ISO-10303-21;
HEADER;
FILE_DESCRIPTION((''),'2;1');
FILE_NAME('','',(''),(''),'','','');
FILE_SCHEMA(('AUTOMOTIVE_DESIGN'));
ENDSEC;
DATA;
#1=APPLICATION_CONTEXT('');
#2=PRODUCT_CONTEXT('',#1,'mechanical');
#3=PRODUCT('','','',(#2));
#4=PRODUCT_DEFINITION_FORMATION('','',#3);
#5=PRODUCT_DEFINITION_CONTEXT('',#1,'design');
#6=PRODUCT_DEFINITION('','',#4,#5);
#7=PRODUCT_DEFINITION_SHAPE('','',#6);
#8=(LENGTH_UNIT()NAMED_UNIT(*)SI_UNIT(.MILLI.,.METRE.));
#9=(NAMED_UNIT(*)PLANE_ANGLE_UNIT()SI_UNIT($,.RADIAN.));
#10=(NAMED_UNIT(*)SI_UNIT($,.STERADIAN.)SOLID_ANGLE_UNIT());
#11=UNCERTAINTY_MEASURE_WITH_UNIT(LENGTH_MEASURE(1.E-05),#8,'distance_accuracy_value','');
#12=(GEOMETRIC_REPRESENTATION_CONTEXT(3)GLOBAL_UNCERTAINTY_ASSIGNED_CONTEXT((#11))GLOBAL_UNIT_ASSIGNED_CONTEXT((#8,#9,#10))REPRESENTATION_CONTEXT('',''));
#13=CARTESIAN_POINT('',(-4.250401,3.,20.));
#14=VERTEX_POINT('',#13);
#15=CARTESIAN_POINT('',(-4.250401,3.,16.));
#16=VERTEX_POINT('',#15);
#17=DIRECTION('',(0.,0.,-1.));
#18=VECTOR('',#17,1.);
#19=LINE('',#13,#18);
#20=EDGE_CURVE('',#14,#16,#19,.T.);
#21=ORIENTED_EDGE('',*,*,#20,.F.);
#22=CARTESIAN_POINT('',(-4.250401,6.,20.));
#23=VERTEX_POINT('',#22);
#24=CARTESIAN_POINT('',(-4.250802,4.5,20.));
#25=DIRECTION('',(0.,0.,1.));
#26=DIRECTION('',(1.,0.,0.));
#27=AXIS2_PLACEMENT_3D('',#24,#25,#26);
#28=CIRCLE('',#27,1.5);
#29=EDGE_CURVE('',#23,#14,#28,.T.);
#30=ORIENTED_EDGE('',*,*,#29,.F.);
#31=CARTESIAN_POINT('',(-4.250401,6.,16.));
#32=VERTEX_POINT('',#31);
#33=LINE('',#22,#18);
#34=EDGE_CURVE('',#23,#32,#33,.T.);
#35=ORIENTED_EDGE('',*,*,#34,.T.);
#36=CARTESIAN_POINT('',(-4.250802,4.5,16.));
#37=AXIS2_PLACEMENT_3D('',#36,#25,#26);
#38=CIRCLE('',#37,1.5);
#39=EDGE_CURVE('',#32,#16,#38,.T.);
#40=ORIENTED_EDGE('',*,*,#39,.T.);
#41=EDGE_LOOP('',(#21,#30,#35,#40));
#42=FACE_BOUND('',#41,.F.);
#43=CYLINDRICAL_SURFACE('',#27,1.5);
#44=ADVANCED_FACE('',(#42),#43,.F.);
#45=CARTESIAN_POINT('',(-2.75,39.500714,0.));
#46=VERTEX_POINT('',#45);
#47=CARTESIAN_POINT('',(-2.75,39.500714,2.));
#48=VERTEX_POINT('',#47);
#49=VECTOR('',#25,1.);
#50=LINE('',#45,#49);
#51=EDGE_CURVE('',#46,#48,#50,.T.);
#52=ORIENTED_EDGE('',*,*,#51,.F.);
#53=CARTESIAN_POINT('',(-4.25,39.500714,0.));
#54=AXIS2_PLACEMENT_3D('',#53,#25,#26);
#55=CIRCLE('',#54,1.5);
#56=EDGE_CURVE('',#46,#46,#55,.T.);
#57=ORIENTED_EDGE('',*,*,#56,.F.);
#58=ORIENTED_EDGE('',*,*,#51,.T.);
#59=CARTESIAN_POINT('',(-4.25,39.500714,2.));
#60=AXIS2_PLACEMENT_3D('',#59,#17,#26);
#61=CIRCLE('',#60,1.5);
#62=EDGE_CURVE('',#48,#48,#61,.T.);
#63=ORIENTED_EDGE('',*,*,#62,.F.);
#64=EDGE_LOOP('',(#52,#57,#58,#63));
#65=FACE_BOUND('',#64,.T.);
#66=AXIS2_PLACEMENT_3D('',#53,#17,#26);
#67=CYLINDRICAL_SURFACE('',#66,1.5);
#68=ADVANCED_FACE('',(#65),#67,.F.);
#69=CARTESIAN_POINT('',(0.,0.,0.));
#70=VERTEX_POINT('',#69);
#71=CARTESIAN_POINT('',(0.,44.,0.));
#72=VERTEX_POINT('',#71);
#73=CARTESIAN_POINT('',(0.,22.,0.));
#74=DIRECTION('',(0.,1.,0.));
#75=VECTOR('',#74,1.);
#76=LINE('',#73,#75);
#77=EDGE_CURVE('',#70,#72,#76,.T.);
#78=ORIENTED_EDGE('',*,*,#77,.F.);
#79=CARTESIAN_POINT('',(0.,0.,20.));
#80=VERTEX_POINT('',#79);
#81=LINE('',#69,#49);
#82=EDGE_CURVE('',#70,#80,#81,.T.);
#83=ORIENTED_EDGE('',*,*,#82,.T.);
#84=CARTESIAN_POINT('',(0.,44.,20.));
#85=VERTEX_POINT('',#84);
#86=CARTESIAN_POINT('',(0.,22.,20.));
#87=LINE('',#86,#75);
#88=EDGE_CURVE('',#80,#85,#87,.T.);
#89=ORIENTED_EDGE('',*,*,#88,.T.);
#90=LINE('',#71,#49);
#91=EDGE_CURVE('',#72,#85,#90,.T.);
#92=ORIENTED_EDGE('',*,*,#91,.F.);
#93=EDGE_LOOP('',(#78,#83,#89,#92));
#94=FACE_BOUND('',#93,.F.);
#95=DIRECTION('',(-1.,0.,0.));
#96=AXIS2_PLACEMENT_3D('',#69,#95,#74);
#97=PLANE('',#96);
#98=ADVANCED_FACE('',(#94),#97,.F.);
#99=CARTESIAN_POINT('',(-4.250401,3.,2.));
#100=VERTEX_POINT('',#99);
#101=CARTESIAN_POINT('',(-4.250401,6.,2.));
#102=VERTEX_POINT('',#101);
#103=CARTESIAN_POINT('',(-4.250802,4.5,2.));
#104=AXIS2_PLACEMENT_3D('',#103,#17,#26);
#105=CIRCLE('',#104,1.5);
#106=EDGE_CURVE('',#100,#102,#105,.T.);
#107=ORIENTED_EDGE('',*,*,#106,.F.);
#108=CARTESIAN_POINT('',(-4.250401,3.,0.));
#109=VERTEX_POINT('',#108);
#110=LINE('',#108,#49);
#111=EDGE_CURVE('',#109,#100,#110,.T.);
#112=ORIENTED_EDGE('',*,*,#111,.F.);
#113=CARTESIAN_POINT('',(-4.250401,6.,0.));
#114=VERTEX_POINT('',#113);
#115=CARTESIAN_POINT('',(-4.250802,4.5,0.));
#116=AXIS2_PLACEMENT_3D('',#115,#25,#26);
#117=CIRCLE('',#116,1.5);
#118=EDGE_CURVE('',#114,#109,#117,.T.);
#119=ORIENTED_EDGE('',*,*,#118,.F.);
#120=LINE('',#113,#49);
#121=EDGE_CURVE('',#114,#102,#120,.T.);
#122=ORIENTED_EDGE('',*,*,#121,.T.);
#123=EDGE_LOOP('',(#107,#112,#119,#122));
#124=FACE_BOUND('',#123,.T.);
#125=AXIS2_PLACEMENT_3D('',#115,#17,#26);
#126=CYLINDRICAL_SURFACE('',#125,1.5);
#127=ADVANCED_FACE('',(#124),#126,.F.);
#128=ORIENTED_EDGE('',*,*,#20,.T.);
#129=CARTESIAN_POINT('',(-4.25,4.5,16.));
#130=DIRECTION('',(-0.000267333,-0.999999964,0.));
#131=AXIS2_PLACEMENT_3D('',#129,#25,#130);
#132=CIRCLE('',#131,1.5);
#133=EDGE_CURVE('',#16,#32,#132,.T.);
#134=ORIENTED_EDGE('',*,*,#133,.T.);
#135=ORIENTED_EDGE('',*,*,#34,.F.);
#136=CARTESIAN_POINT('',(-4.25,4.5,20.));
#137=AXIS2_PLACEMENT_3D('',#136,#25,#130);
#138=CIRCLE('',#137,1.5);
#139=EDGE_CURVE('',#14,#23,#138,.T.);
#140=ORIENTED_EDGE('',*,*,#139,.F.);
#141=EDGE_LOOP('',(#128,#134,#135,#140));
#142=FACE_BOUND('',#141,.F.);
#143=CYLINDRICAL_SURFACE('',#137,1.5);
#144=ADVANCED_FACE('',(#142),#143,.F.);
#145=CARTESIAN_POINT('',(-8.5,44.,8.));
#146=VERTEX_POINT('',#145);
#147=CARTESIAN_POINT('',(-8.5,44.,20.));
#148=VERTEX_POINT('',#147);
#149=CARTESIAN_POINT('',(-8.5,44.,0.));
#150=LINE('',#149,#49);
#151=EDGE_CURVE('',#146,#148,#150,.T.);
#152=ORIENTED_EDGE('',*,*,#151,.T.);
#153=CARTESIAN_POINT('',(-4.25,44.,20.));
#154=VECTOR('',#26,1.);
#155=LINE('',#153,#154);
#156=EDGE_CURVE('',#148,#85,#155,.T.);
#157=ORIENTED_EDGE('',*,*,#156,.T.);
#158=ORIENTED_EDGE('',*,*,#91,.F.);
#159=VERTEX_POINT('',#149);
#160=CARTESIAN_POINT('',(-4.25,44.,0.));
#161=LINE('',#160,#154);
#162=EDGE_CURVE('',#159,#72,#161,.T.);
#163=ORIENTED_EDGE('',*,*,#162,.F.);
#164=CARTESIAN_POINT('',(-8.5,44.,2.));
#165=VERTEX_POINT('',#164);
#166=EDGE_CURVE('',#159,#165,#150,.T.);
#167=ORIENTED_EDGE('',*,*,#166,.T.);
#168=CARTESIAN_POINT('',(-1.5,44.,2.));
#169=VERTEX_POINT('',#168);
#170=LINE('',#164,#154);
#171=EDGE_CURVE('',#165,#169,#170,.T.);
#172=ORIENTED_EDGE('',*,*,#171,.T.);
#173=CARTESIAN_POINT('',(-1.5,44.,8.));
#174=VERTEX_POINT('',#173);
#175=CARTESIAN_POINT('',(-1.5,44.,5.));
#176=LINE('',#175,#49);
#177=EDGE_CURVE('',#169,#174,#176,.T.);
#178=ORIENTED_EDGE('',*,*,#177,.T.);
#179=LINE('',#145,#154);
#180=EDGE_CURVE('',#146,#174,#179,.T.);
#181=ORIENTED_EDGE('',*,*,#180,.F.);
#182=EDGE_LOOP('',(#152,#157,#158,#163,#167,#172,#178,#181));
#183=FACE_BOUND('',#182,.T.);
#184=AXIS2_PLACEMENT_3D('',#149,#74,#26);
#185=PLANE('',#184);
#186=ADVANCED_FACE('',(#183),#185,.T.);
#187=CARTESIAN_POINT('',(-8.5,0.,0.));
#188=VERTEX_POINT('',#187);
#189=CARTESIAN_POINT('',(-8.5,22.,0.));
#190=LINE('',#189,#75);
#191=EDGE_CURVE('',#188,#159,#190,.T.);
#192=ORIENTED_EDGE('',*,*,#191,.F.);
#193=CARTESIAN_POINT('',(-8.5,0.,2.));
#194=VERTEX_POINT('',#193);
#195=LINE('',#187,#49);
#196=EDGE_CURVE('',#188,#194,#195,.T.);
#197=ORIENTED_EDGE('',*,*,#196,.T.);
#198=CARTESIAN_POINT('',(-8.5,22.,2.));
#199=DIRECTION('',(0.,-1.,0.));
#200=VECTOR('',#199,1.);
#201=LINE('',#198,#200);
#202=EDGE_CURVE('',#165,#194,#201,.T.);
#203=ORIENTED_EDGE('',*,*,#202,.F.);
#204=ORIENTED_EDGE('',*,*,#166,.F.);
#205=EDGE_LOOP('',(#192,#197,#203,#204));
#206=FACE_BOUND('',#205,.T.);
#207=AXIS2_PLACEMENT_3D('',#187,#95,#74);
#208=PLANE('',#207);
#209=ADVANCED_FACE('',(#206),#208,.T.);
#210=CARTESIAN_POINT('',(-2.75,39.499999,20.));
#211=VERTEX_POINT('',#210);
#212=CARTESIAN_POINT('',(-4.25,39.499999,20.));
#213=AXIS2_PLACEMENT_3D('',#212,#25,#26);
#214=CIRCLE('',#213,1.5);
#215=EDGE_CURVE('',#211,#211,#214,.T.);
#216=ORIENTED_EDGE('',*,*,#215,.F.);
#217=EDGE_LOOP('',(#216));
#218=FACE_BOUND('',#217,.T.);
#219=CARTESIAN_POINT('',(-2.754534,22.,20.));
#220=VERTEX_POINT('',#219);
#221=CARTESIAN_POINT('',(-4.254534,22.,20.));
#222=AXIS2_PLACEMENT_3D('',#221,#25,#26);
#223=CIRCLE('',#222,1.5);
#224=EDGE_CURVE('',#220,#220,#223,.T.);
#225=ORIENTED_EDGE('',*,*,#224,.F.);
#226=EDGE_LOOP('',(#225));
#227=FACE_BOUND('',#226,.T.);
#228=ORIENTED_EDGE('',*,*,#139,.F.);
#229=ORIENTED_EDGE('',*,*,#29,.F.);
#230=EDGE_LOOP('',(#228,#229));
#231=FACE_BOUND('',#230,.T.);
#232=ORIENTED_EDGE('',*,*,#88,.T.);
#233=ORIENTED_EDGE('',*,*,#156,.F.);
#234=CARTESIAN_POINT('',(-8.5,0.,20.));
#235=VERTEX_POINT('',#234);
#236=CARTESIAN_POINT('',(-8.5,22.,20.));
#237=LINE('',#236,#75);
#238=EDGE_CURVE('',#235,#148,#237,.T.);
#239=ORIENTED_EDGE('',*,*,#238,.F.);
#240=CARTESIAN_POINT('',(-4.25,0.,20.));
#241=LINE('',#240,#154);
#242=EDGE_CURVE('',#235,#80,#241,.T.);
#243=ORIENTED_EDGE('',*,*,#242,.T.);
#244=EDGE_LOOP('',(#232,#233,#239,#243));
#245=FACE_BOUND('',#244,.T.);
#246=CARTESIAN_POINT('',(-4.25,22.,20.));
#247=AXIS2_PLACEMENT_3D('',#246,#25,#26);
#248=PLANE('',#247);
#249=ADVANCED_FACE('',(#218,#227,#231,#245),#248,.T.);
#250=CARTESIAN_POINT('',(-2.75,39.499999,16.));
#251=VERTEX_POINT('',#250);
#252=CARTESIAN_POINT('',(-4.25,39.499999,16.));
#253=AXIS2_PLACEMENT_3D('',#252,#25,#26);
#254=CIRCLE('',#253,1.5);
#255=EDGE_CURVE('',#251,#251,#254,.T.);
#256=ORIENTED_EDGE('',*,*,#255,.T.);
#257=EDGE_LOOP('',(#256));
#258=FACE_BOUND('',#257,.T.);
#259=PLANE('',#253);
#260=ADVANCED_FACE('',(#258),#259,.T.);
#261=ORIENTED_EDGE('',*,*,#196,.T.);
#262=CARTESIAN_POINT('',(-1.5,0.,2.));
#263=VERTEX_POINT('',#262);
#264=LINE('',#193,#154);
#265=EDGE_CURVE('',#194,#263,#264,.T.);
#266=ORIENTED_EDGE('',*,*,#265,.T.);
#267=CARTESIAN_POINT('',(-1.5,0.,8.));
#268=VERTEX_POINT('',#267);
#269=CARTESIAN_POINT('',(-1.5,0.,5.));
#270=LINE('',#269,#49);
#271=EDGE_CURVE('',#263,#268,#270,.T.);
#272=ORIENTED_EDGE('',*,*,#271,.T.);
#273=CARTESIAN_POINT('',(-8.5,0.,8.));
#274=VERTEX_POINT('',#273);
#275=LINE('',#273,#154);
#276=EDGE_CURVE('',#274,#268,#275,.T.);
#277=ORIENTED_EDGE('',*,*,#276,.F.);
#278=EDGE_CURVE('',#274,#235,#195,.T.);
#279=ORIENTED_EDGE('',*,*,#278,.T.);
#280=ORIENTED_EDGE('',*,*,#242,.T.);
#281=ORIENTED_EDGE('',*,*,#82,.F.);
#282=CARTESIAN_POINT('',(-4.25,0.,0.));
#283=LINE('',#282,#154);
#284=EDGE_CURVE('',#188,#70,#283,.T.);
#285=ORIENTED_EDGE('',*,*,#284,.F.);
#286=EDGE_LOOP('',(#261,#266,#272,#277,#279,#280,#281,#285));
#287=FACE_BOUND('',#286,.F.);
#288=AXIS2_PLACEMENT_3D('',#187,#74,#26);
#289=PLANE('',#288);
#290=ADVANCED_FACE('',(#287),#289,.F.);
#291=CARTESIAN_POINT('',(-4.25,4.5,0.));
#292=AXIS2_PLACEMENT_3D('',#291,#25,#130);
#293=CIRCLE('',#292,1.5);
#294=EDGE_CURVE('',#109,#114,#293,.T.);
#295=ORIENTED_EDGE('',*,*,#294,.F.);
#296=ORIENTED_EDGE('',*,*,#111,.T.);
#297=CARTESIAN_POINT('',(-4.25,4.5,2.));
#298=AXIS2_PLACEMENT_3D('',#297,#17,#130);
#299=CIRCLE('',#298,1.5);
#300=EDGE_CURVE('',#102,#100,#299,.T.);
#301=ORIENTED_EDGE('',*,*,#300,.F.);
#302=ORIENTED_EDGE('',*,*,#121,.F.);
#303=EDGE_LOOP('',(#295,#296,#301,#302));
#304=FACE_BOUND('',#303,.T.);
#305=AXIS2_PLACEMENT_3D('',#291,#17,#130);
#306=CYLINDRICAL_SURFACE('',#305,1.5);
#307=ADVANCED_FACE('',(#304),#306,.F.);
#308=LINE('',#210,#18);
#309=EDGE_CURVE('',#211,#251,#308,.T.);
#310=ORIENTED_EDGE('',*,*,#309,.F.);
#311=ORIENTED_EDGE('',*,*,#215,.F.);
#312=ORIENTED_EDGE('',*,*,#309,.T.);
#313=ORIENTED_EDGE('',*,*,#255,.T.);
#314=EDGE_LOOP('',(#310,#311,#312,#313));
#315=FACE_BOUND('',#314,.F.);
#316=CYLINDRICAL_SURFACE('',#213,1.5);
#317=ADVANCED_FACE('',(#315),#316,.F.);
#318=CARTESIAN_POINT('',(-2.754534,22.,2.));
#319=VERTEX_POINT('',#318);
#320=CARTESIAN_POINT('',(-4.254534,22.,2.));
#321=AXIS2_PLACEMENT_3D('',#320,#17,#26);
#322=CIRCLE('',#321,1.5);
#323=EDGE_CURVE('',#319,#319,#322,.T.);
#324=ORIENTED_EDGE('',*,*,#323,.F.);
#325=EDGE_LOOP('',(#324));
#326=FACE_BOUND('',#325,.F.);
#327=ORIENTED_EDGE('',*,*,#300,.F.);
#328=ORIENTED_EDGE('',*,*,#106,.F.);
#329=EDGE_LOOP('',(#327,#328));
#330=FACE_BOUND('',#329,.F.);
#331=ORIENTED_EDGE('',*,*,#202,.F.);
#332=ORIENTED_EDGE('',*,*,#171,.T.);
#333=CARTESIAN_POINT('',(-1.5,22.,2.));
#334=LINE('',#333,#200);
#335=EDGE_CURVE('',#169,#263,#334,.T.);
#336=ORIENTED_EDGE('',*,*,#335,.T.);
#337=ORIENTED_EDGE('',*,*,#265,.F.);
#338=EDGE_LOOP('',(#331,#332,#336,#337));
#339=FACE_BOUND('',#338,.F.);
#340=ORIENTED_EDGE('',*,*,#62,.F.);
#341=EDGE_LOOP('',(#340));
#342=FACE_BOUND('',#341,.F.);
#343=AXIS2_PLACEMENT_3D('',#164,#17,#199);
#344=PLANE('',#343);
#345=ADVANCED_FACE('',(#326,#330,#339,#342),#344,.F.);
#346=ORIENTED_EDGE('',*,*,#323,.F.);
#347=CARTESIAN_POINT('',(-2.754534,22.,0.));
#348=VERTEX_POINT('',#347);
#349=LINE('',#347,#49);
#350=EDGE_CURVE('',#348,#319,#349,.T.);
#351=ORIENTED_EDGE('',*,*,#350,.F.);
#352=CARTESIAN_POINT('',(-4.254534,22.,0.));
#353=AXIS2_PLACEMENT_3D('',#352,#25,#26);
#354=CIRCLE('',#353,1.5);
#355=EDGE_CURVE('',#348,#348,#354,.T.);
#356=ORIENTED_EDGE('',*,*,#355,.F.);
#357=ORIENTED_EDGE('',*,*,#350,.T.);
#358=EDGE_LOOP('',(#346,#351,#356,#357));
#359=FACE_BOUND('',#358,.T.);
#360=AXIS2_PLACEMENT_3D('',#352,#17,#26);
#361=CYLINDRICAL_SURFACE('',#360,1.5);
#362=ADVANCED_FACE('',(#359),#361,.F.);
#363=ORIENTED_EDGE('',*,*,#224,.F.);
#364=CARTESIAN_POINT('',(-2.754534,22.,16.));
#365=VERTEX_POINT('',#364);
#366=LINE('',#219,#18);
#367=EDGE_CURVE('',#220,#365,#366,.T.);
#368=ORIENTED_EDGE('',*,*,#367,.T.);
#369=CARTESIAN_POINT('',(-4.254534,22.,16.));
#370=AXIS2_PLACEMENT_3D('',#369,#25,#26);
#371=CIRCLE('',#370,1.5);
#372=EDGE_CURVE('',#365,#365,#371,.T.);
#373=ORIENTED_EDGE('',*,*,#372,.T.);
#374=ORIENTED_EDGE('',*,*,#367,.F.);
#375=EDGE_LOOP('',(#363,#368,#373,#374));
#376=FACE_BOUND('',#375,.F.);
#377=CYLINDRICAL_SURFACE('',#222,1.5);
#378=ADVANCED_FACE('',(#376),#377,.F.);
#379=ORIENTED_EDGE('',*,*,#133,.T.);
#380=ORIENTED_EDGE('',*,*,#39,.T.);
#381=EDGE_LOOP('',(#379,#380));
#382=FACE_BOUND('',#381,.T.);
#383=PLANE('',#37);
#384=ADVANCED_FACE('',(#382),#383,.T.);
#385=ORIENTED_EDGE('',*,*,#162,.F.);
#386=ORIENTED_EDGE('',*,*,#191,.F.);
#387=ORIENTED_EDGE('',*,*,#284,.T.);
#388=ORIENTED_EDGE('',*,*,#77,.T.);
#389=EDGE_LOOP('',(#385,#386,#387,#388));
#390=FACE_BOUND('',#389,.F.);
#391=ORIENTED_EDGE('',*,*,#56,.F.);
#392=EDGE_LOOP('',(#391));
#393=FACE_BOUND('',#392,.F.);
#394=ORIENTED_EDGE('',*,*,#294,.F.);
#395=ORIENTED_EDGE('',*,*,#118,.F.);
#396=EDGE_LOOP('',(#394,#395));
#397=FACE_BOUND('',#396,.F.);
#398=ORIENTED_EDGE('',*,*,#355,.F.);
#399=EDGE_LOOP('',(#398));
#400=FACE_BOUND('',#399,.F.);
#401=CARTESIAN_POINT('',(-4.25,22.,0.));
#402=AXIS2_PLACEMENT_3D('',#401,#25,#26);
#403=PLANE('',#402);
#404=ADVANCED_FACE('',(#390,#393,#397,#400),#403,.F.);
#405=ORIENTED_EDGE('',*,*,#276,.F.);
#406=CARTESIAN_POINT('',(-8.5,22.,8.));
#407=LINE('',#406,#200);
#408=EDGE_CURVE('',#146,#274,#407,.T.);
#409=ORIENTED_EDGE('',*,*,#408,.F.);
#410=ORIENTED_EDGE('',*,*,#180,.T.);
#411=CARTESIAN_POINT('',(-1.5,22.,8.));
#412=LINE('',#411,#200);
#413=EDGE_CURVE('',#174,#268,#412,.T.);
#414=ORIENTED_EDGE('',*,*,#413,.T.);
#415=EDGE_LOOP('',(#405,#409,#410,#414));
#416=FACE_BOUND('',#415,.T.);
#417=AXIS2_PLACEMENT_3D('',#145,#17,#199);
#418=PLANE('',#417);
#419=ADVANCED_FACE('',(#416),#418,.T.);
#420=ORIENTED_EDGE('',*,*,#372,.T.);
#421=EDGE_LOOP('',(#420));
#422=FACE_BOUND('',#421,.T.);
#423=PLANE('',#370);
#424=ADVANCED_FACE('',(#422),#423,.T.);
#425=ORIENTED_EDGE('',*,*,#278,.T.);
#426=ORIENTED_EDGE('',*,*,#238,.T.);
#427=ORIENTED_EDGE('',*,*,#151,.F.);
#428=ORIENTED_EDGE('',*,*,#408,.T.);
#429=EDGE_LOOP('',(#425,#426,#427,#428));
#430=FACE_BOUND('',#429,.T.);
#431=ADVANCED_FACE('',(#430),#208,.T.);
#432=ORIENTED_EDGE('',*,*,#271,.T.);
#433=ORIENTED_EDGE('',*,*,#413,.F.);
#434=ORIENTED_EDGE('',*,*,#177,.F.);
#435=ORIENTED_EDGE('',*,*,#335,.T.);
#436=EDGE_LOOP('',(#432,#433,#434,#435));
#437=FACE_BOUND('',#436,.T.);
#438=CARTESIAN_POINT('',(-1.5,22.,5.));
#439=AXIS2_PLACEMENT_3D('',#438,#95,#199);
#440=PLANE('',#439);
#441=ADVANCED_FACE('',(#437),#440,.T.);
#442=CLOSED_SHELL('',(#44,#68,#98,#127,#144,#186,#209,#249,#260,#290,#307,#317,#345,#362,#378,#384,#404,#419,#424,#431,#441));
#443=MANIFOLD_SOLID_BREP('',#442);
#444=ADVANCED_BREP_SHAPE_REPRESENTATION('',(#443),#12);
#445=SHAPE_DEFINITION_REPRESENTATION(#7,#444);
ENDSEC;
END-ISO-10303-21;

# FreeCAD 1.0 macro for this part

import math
import FreeCAD as App
import Part
import Sketcher
from FreeCAD import Vector


def add_polygon(sketch, points):
    """Adds a closed chain of lines whose ends are joined by coincident constraints."""
    first, n = sketch.GeometryCount, len(points)
    for a, b in zip(points, points[1:] + points[:1]):
        sketch.addGeometry(Part.LineSegment(App.Vector(*a, 0), App.Vector(*b, 0)), False)
    for i in range(n):
        sketch.addConstraint(Sketcher.Constraint("Coincident", first + i, 2, first + (i + 1) % n, 1))

doc = App.newDocument("Part")
body = doc.addObject("PartDesign::Body", "Body")

# Sketch on XY plane
sketch1 = body.newObject("Sketcher::SketchObject", "Sketch")
sketch1.AttachmentSupport = (doc.getObject("XY_Plane"), [""])
sketch1.MapMode = "FlatFace"
add_polygon(sketch1, [(-8.5, 44), (-8.5, 0), (0, 0), (0, 44)])  # lines 0-3
sketch1.addConstraint(Sketcher.Constraint("Vertical", 0))
sketch1.addConstraint(Sketcher.Constraint("Horizontal", 1))
sketch1.addConstraint(Sketcher.Constraint("Vertical", 2))
sketch1.addConstraint(Sketcher.Constraint("Horizontal", 3))
sketch1.addConstraint(Sketcher.Constraint("Coincident", 1, 2, -1, 1))
sketch1.addConstraint(Sketcher.Constraint("DistanceY", 0, 2, 0, 1, 44.0))
sketch1.addConstraint(Sketcher.Constraint("DistanceX", 1, 1, 1, 2, 8.5))
pad1 = body.newObject("PartDesign::Pad", "Pad")
pad1.Profile = sketch1
pad1.Length = 20

# Sketch on XY plane
sketch2 = body.newObject("Sketcher::SketchObject", "Sketch001")
sketch2.AttachmentSupport = (doc.getObject("XY_Plane"), [""])
sketch2.MapMode = "FlatFace"
sketch2.addGeometry(Part.ArcOfCircle(Part.Circle(Vector(-4.25, 4.5, 0), Vector(0, 0, 1), 1.5), math.radians(-90.015317), math.radians(90.015317)), False)
sketch2.addGeometry(Part.ArcOfCircle(Part.Circle(Vector(-4.250802, 4.5, 0), Vector(0, 0, 1), 1.5), math.radians(89.984683), math.radians(270.015317)), False)
sketch2.addGeometry(Part.Circle(Vector(-4.25, 39.500714, 0), Vector(0, 0, 1), 1.5), False)
sketch2.addGeometry(Part.Circle(Vector(-4.254534, 22, 0), Vector(0, 0, 1), 1.5), False)
sketch2.addConstraint(Sketcher.Constraint("Coincident", 0, 1, 1, 2))
sketch2.addConstraint(Sketcher.Constraint("Coincident", 1, 1, 0, 2))
sketch2.addConstraint(Sketcher.Constraint("Equal", 1, 2))
sketch2.addConstraint(Sketcher.Constraint("Equal", 2, 3))
sketch2.addConstraint(Sketcher.Constraint("Vertical", 0, 3, 2, 3))
sketch2.addConstraint(Sketcher.Constraint("Vertical", 0, 1, 1, 1))
sketch2.addConstraint(Sketcher.Constraint("Diameter", 2, 3.0))
sketch2.addConstraint(Sketcher.Constraint("DistanceY", -1, 1, 3, 3, 22.0))
sketch2.addConstraint(Sketcher.Constraint("DistanceY", -1, 1, 0, 1, 3.0))
sketch2.addConstraint(Sketcher.Constraint("DistanceX", 0, 3, -1, 1, 4.25))
sketch2.addConstraint(Sketcher.Constraint("DistanceX", 0, 1, -1, 1, 4.250401))
sketch2.addConstraint(Sketcher.Constraint("DistanceX", 1, 3, 0, 1, 0.000401))
sketch2.addConstraint(Sketcher.Constraint("DistanceX", 3, 3, 1, 3, 0.003732))
sketch2.addConstraint(Sketcher.Constraint("DistanceY", -1, 1, 2, 3, 39.500714))
pocket1 = body.newObject("PartDesign::Pocket", "Pocket")
pocket1.Profile = sketch2
pocket1.Length = 4
pocket1.Reversed = True

# Sketch on XY plane
sketch3 = body.newObject("Sketcher::SketchObject", "Sketch002")
sketch3.AttachmentSupport = (doc.getObject("XY_Plane"), [""])
sketch3.MapMode = "FlatFace"
sketch3.AttachmentOffset = App.Placement(Vector(0, 0, 20), App.Rotation())
sketch3.addGeometry(Part.ArcOfCircle(Part.Circle(Vector(-4.25, 4.5, 0), Vector(0, 0, 1), 1.5), math.radians(-90.015317), math.radians(90.015317)), False)
sketch3.addGeometry(Part.ArcOfCircle(Part.Circle(Vector(-4.250802, 4.5, 0), Vector(0, 0, 1), 1.5), math.radians(89.984683), math.radians(270.015317)), False)
sketch3.addGeometry(Part.Circle(Vector(-4.25, 39.499999, 0), Vector(0, 0, 1), 1.5), False)
sketch3.addGeometry(Part.Circle(Vector(-4.254534, 22, 0), Vector(0, 0, 1), 1.5), False)
sketch3.addConstraint(Sketcher.Constraint("Coincident", 0, 1, 1, 2))
sketch3.addConstraint(Sketcher.Constraint("Coincident", 1, 1, 0, 2))
sketch3.addConstraint(Sketcher.Constraint("Equal", 1, 2))
sketch3.addConstraint(Sketcher.Constraint("Equal", 2, 3))
sketch3.addConstraint(Sketcher.Constraint("Vertical", 0, 3, 2, 3))
sketch3.addConstraint(Sketcher.Constraint("Vertical", 0, 1, 1, 1))
sketch3.addConstraint(Sketcher.Constraint("Diameter", 2, 3.0))
sketch3.addConstraint(Sketcher.Constraint("DistanceY", -1, 1, 3, 3, 22.0))
sketch3.addConstraint(Sketcher.Constraint("DistanceY", -1, 1, 0, 1, 3.0))
sketch3.addConstraint(Sketcher.Constraint("DistanceY", 0, 3, 2, 3, 34.999999))
sketch3.addConstraint(Sketcher.Constraint("DistanceX", 0, 3, -1, 1, 4.25))
sketch3.addConstraint(Sketcher.Constraint("DistanceX", 0, 1, -1, 1, 4.250401))
sketch3.addConstraint(Sketcher.Constraint("DistanceX", 1, 3, 0, 1, 0.000401))
sketch3.addConstraint(Sketcher.Constraint("DistanceX", 3, 3, 1, 3, 0.003732))
pocket2 = body.newObject("PartDesign::Pocket", "Pocket001")
pocket2.Profile = sketch3
pocket2.Length = 4

# Sketch on YZ plane
sketch4 = body.newObject("Sketcher::SketchObject", "Sketch003")
sketch4.AttachmentSupport = (doc.getObject("YZ_Plane"), [""])
sketch4.MapMode = "FlatFace"
sketch4.AttachmentOffset = App.Placement(Vector(0, 0, -8.5), App.Rotation())
add_polygon(sketch4, [(44, 8), (44, 2), (0, 2), (0, 8)])  # lines 0-3
sketch4.addConstraint(Sketcher.Constraint("Vertical", 0))
sketch4.addConstraint(Sketcher.Constraint("Horizontal", 1))
sketch4.addConstraint(Sketcher.Constraint("Vertical", 2))
sketch4.addConstraint(Sketcher.Constraint("Horizontal", 3))
sketch4.addConstraint(Sketcher.Constraint("PointOnObject", 1, 2, -2))
sketch4.addConstraint(Sketcher.Constraint("DistanceX", 1, 2, 1, 1, 44.0))
sketch4.addConstraint(Sketcher.Constraint("DistanceY", 0, 2, 0, 1, 6.0))
sketch4.addConstraint(Sketcher.Constraint("DistanceY", -1, 1, 0, 2, 2.0))
pocket3 = body.newObject("PartDesign::Pocket", "Pocket002")
pocket3.Profile = sketch4
pocket3.Length = 7
pocket3.Reversed = True

doc.recompute()
